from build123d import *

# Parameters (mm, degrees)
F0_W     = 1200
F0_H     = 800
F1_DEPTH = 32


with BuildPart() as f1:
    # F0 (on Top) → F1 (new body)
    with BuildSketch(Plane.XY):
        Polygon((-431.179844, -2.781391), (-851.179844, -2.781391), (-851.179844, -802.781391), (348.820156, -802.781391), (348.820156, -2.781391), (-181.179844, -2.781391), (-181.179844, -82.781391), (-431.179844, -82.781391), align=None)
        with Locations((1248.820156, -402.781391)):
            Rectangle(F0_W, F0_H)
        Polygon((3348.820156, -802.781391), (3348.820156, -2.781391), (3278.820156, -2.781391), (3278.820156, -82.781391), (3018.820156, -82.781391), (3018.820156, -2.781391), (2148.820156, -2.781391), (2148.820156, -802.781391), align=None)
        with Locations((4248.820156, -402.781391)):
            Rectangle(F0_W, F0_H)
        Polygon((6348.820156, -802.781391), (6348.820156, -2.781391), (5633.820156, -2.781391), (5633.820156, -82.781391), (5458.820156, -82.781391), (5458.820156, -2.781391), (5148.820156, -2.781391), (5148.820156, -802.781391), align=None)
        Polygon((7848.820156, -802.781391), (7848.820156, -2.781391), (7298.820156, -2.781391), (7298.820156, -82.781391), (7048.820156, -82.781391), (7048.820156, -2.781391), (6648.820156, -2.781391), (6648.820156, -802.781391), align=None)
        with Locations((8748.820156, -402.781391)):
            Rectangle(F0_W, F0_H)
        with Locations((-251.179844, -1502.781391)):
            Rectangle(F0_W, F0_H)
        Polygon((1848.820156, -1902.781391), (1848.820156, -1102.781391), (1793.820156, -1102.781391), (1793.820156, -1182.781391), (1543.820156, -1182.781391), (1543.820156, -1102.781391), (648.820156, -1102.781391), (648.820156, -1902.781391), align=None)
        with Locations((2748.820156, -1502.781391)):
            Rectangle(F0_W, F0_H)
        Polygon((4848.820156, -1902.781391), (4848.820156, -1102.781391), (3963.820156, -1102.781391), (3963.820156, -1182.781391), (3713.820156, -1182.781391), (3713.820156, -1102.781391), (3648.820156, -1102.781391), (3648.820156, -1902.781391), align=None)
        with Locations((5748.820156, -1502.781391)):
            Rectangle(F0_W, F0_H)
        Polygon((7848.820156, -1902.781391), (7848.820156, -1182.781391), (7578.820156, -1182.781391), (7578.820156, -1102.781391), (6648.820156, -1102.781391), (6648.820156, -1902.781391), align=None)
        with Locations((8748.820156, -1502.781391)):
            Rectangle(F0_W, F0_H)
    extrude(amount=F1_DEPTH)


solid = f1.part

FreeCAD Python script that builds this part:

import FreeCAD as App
import Part
import Sketcher

V = App.Vector
Q = App.Units.Quantity


def add_polygon(sketch, points):
    """Adds a closed chain of lines whose ends are joined by coincident constraints."""
    first, n = sketch.GeometryCount, len(points)
    for a, b in zip(points, points[1:] + points[:1]):
        sketch.addGeometry(Part.LineSegment(App.Vector(*a, 0), App.Vector(*b, 0)), False)
    for i in range(n):
        sketch.addConstraint(Sketcher.Constraint("Coincident", first + i, 2, first + (i + 1) % n, 1))

doc = App.newDocument("Part")
body = doc.addObject("PartDesign::Body", "Body")
body.AllowCompound = True

# Sketch on XY plane
sketch1 = body.newObject("Sketcher::SketchObject", "Sketch")
sketch1.AttachmentSupport = (doc.getObject("XY_Plane"), [""])
sketch1.MapMode = "FlatFace"
add_polygon(sketch1, [(-431, -3), (-851, -3), (-851, -803), (349, -803), (349, -3), (-181, -3), (-181, -83), (-431, -83)])  # lines 0-7
add_polygon(sketch1, [(649, -3), (649, -803), (1849, -803), (1849, -3)])  # lines 8-11
add_polygon(sketch1, [(3349, -803), (3349, -3), (3279, -3), (3279, -83), (3019, -83), (3019, -3), (2149, -3), (2149, -803)])  # lines 12-19
add_polygon(sketch1, [(3649, -3), (3649, -803), (4849, -803), (4849, -3)])  # lines 20-23
add_polygon(sketch1, [(6349, -803), (6349, -3), (5634, -3), (5634, -83), (5459, -83), (5459, -3), (5149, -3), (5149, -803)])  # lines 24-31
add_polygon(sketch1, [(7849, -803), (7849, -3), (7299, -3), (7299, -83), (7049, -83), (7049, -3), (6649, -3), (6649, -803)])  # lines 32-39
add_polygon(sketch1, [(8149, -3), (8149, -803), (9349, -803), (9349, -3)])  # lines 40-43
add_polygon(sketch1, [(-851, -1103), (-851, -1903), (349, -1903), (349, -1103)])  # lines 44-47
add_polygon(sketch1, [(1849, -1903), (1849, -1103), (1794, -1103), (1794, -1183), (1544, -1183), (1544, -1103), (649, -1103), (649, -1903)])  # lines 48-55
add_polygon(sketch1, [(2149, -1103), (2149, -1903), (3349, -1903), (3349, -1103)])  # lines 56-59
add_polygon(sketch1, [(4849, -1903), (4849, -1103), (3964, -1103), (3964, -1183), (3714, -1183), (3714, -1103), (3649, -1103), (3649, -1903)])  # lines 60-67
add_polygon(sketch1, [(5149, -1103), (5149, -1903), (6349, -1903), (6349, -1103)])  # lines 68-71
add_polygon(sketch1, [(7849, -1903), (7849, -1183), (7579, -1183), (7579, -1103), (6649, -1103), (6649, -1903)])  # lines 72-77
add_polygon(sketch1, [(8149, -1103), (8149, -1903), (9349, -1903), (9349, -1103)])  # lines 78-81
sketch1.addConstraint([
    Sketcher.Constraint("Horizontal", 0),
    Sketcher.Constraint("Vertical", 1),
    Sketcher.Constraint("Horizontal", 2),
    Sketcher.Constraint("Vertical", 3),
    Sketcher.Constraint("Horizontal", 4),
    Sketcher.Constraint("Vertical", 5),
    Sketcher.Constraint("Horizontal", 6),
    Sketcher.Constraint("Vertical", 7),
    Sketcher.Constraint("Vertical", 8),
    Sketcher.Constraint("Horizontal", 9),
    Sketcher.Constraint("Vertical", 10),
    Sketcher.Constraint("Horizontal", 11),
    Sketcher.Constraint("Vertical", 12),
    Sketcher.Constraint("Horizontal", 13),
    Sketcher.Constraint("Vertical", 14),
    Sketcher.Constraint("Horizontal", 15),
    Sketcher.Constraint("Vertical", 16),
    Sketcher.Constraint("Horizontal", 17),
    Sketcher.Constraint("Vertical", 18),
    Sketcher.Constraint("Horizontal", 19),
    Sketcher.Constraint("Vertical", 20),
    Sketcher.Constraint("Horizontal", 21),
    Sketcher.Constraint("Vertical", 22),
    Sketcher.Constraint("Horizontal", 23),
    Sketcher.Constraint("Vertical", 24),
    Sketcher.Constraint("Horizontal", 25),
    Sketcher.Constraint("Vertical", 26),
    Sketcher.Constraint("Horizontal", 27),
    Sketcher.Constraint("Vertical", 28),
    Sketcher.Constraint("Horizontal", 29),
    Sketcher.Constraint("Vertical", 30),
    Sketcher.Constraint("Horizontal", 31),
    Sketcher.Constraint("Vertical", 32),
    Sketcher.Constraint("Horizontal", 33),
    Sketcher.Constraint("Vertical", 34),
    Sketcher.Constraint("Horizontal", 35),
    Sketcher.Constraint("Vertical", 36),
    Sketcher.Constraint("Horizontal", 37),
    Sketcher.Constraint("Vertical", 38),
    Sketcher.Constraint("Horizontal", 39),
    Sketcher.Constraint("Vertical", 40),
    Sketcher.Constraint("Horizontal", 41),
    Sketcher.Constraint("Vertical", 42),
    Sketcher.Constraint("Horizontal", 43),
    Sketcher.Constraint("Vertical", 44),
    Sketcher.Constraint("Horizontal", 45),
    Sketcher.Constraint("Vertical", 46),
    Sketcher.Constraint("Horizontal", 47),
    Sketcher.Constraint("Vertical", 48),
    Sketcher.Constraint("Horizontal", 49),
    Sketcher.Constraint("Vertical", 50),
    Sketcher.Constraint("Horizontal", 51),
    Sketcher.Constraint("Vertical", 52),
    Sketcher.Constraint("Horizontal", 53),
    Sketcher.Constraint("Vertical", 54),
    Sketcher.Constraint("Horizontal", 55),
    Sketcher.Constraint("Vertical", 56),
    Sketcher.Constraint("Horizontal", 57),
    Sketcher.Constraint("Vertical", 58),
    Sketcher.Constraint("Horizontal", 59),
    Sketcher.Constraint("Vertical", 60),
    Sketcher.Constraint("Horizontal", 61),
    Sketcher.Constraint("Vertical", 62),
    Sketcher.Constraint("Horizontal", 63),
    Sketcher.Constraint("Vertical", 64),
    Sketcher.Constraint("Horizontal", 65),
    Sketcher.Constraint("Vertical", 66),
    Sketcher.Constraint("Horizontal", 67),
    Sketcher.Constraint("Vertical", 68),
    Sketcher.Constraint("Horizontal", 69),
    Sketcher.Constraint("Vertical", 70),
    Sketcher.Constraint("Horizontal", 71),
    Sketcher.Constraint("Vertical", 72),
    Sketcher.Constraint("Horizontal", 73),
    Sketcher.Constraint("Vertical", 74),
    Sketcher.Constraint("Horizontal", 75),
    Sketcher.Constraint("Vertical", 76),
    Sketcher.Constraint("Horizontal", 77),
    Sketcher.Constraint("Vertical", 78),
    Sketcher.Constraint("Horizontal", 79),
    Sketcher.Constraint("Vertical", 80),
    Sketcher.Constraint("Horizontal", 81),
    Sketcher.Constraint("Horizontal", 0, 2, 3, 2),
    Sketcher.Constraint("Horizontal", 2, 2, 8, 2),
    Sketcher.Constraint("Horizontal", 7, 2, 10, 2),
    Sketcher.Constraint("Horizontal", 11, 2, 12, 2),
    Sketcher.Constraint("Horizontal", 6, 2, 14, 2),
    Sketcher.Constraint("Horizontal", 13, 2, 16, 2),
    Sketcher.Constraint("Horizontal", 9, 2, 18, 2),
    Sketcher.Constraint("Horizontal", 19, 2, 20, 2),
    Sketcher.Constraint("Horizontal", 17, 2, 22, 2),
    Sketcher.Constraint("Horizontal", 23, 2, 24, 2),
    Sketcher.Constraint("Horizontal", 15, 2, 26, 2),
    Sketcher.Constraint("Horizontal", 25, 2, 28, 2),
    Sketcher.Constraint("Horizontal", 21, 2, 30, 2),
    Sketcher.Constraint("Horizontal", 29, 2, 32, 2),
    Sketcher.Constraint("Horizontal", 27, 2, 34, 2),
    Sketcher.Constraint("Horizontal", 33, 2, 36, 2),
    Sketcher.Constraint("Horizontal", 31, 2, 38, 2),
    Sketcher.Constraint("Horizontal", 39, 2, 40, 2),
    Sketcher.Constraint("Horizontal", 37, 2, 42, 2),
    Sketcher.Constraint("Horizontal", 47, 2, 48, 2),
    Sketcher.Constraint("Horizontal", 49, 2, 52, 2),
    Sketcher.Constraint("Horizontal", 45, 2, 54, 2),
    Sketcher.Constraint("Horizontal", 55, 2, 56, 2),
    Sketcher.Constraint("Horizontal", 53, 2, 58, 2),
    Sketcher.Constraint("Horizontal", 59, 2, 60, 2),
    Sketcher.Constraint("Horizontal", 51, 2, 62, 2),
    Sketcher.Constraint("Horizontal", 61, 2, 64, 2),
    Sketcher.Constraint("Horizontal", 57, 2, 66, 2),
    Sketcher.Constraint("Horizontal", 67, 2, 68, 2),
    Sketcher.Constraint("Horizontal", 65, 2, 70, 2),
    Sketcher.Constraint("Horizontal", 63, 2, 72, 2),
    Sketcher.Constraint("Horizontal", 71, 2, 74, 2),
    Sketcher.Constraint("Horizontal", 69, 2, 76, 2),
    Sketcher.Constraint("Horizontal", 77, 2, 78, 2),
    Sketcher.Constraint("Horizontal", 75, 2, 80, 2),
    Sketcher.Constraint("Vertical", 1, 2, 44, 2),
    Sketcher.Constraint("Vertical", 3, 2, 45, 2),
    Sketcher.Constraint("Vertical", 10, 2, 48, 2),
    Sketcher.Constraint("Vertical", 11, 2, 53, 2),
    Sketcher.Constraint("Vertical", 18, 2, 56, 2),
    Sketcher.Constraint("Vertical", 19, 2, 57, 2),
    Sketcher.Constraint("Vertical", 22, 2, 60, 2),
    Sketcher.Constraint("Vertical", 23, 2, 65, 2),
    Sketcher.Constraint("Vertical", 30, 2, 68, 2),
    Sketcher.Constraint("Vertical", 31, 2, 69, 2),
    Sketcher.Constraint("Vertical", 39, 2, 72, 2),
    Sketcher.Constraint("Vertical", 38, 2, 75, 2),
    Sketcher.Constraint("Vertical", 43, 2, 78, 2),
    Sketcher.Constraint("Vertical", 42, 2, 79, 2),
    Sketcher.Constraint("Equal", 2, 9),
    Sketcher.Constraint("Equal", 11, 19),
    Sketcher.Constraint("Equal", 19, 21),
    Sketcher.Constraint("Equal", 23, 31),
    Sketcher.Constraint("Equal", 6, 35),
    Sketcher.Constraint("Equal", 31, 39),
    Sketcher.Constraint("Equal", 39, 41),
    Sketcher.Constraint("Equal", 35, 51),
    Sketcher.Constraint("Equal", 51, 63),
    Sketcher.Constraint("Equal", 42, 44),
    Sketcher.Constraint("Equal", 36, 50),
    Sketcher.Constraint("DistanceX", 0, 2, 0, 1, Q("420 mm")),
    Sketcher.Constraint("DistanceX", 2, 1, 2, 2, Q("1200 mm")),
    Sketcher.Constraint("DistanceX", 4, 2, 4, 1, Q("530 mm")),
    Sketcher.Constraint("DistanceX", 13, 2, 13, 1, Q("70 mm")),
    Sketcher.Constraint("DistanceX", 15, 2, 15, 1, Q("260 mm")),
    Sketcher.Constraint("DistanceX", 25, 2, 25, 1, Q("715 mm")),
    Sketcher.Constraint("DistanceX", 27, 2, 27, 1, Q("175 mm")),
    Sketcher.Constraint("DistanceX", 33, 2, 33, 1, Q("550 mm")),
    Sketcher.Constraint("DistanceX", 49, 2, 49, 1, Q("55 mm")),
    Sketcher.Constraint("DistanceX", 61, 2, 61, 1, Q("885 mm")),
    Sketcher.Constraint("DistanceX", 73, 2, 73, 1, Q("270 mm")),
    Sketcher.Constraint("DistanceY", 1, 2, 1, 1, Q("800 mm")),
    Sketcher.Constraint("DistanceY", 5, 2, 5, 1, Q("80 mm")),
    Sketcher.Constraint("DistanceY", 0, 2, -1, 1, Q("2.781391 mm")),
    Sketcher.Constraint("DistanceY", 44, 2, -1, 1, Q("1902.781391 mm")),
    Sketcher.Constraint("DistanceX", 0, 2, -1, 1, Q("851.179844 mm")),
    Sketcher.Constraint("DistanceX", -1, 1, 8, 2, Q("648.820156 mm")),
    Sketcher.Constraint("DistanceX", -1, 1, 12, 2, Q("3348.820156 mm")),
    Sketcher.Constraint("DistanceX", -1, 1, 20, 2, Q("3648.820156 mm")),
    Sketcher.Constraint("DistanceX", -1, 1, 24, 2, Q("6348.820156 mm")),
    Sketcher.Constraint("DistanceX", -1, 1, 32, 2, Q("7848.820156 mm")),
    Sketcher.Constraint("DistanceX", -1, 1, 40, 2, Q("8148.820156 mm")),
])
pad1 = body.newObject("PartDesign::Pad", "Pad")
pad1.Profile = sketch1
pad1.Length = 32

doc.recompute()
